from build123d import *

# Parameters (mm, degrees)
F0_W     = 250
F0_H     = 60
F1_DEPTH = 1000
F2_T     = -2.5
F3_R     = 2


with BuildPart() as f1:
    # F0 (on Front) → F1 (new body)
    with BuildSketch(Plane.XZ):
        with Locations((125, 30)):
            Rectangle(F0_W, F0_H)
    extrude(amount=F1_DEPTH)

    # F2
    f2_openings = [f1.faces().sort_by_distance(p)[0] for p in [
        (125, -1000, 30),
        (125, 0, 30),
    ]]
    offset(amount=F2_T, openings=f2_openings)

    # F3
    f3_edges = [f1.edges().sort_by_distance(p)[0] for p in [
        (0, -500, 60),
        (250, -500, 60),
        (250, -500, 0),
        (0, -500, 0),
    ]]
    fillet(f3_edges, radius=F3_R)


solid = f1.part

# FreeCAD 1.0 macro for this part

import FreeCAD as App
import Part
import Sketcher


def edges_at(feature, points):
    """Names of the edges that pass closest to the given points."""
    edges = feature.Shape.Edges
    near = lambda p: min(range(len(edges)), key=lambda i: edges[i].distToShape(Part.Vertex(*p))[0])
    return sorted({f"Edge{near(p) + 1}" for p in points})


def faces_at(feature, points):
    """Names of the faces that lie closest to the given points."""
    faces = feature.Shape.Faces
    near = lambda p: min(range(len(faces)), key=lambda i: faces[i].distToShape(Part.Vertex(*p))[0])
    return sorted({f"Face{near(p) + 1}" for p in points})


def add_polygon(sketch, points):
    """Adds a closed chain of lines whose ends are joined by coincident constraints."""
    first, n = sketch.GeometryCount, len(points)
    for a, b in zip(points, points[1:] + points[:1]):
        sketch.addGeometry(Part.LineSegment(App.Vector(*a, 0), App.Vector(*b, 0)), False)
    for i in range(n):
        sketch.addConstraint(Sketcher.Constraint("Coincident", first + i, 2, first + (i + 1) % n, 1))

doc = App.newDocument("Part")
body = doc.addObject("PartDesign::Body", "Body")

sketch1 = doc.addObject("Sketcher::SketchObject", "Sketch")
body.addObject(sketch1)
sketch1.AttachmentSupport = (doc.XZ_Plane, [""])
sketch1.MapMode = "FlatFace"
add_polygon(sketch1, [(0, 60), (0, 0), (250, 0), (250, 60)])
sketch1.addConstraint(Sketcher.Constraint("Vertical", 0))
sketch1.addConstraint(Sketcher.Constraint("Horizontal", 1))
sketch1.addConstraint(Sketcher.Constraint("Vertical", 2))
sketch1.addConstraint(Sketcher.Constraint("Horizontal", 3))
sketch1.addConstraint(Sketcher.Constraint("Coincident", 0, 2, -1, 1))
sketch1.addConstraint(Sketcher.Constraint("DistanceX", 1, 1, 1, 2, 250.0))
sketch1.addConstraint(Sketcher.Constraint("DistanceY", 0, 2, 0, 1, 60.0))
pad1 = doc.addObject("PartDesign::Pad", "Pad")
body.addObject(pad1)
pad1.Profile = sketch1
pad1.Length = 1000
doc.recompute()

thickness = doc.addObject("PartDesign::Thickness", "Thickness")
body.addObject(thickness)
thickness.Base = (pad1, faces_at(pad1, [(125, -1000, 30), (125, 0, 30)]))
thickness.Value = 2.5
thickness.Reversed = True
thickness.Join = "Arc"
doc.recompute()

fillet = doc.addObject("PartDesign::Fillet", "Fillet")
body.addObject(fillet)
fillet.Base = (thickness, edges_at(thickness, [
    (0, -500, 60),
    (250, -500, 60),
    (250, -500, 0),
    (0, -500, 0),
]))
fillet.Radius = 2

doc.recompute()
